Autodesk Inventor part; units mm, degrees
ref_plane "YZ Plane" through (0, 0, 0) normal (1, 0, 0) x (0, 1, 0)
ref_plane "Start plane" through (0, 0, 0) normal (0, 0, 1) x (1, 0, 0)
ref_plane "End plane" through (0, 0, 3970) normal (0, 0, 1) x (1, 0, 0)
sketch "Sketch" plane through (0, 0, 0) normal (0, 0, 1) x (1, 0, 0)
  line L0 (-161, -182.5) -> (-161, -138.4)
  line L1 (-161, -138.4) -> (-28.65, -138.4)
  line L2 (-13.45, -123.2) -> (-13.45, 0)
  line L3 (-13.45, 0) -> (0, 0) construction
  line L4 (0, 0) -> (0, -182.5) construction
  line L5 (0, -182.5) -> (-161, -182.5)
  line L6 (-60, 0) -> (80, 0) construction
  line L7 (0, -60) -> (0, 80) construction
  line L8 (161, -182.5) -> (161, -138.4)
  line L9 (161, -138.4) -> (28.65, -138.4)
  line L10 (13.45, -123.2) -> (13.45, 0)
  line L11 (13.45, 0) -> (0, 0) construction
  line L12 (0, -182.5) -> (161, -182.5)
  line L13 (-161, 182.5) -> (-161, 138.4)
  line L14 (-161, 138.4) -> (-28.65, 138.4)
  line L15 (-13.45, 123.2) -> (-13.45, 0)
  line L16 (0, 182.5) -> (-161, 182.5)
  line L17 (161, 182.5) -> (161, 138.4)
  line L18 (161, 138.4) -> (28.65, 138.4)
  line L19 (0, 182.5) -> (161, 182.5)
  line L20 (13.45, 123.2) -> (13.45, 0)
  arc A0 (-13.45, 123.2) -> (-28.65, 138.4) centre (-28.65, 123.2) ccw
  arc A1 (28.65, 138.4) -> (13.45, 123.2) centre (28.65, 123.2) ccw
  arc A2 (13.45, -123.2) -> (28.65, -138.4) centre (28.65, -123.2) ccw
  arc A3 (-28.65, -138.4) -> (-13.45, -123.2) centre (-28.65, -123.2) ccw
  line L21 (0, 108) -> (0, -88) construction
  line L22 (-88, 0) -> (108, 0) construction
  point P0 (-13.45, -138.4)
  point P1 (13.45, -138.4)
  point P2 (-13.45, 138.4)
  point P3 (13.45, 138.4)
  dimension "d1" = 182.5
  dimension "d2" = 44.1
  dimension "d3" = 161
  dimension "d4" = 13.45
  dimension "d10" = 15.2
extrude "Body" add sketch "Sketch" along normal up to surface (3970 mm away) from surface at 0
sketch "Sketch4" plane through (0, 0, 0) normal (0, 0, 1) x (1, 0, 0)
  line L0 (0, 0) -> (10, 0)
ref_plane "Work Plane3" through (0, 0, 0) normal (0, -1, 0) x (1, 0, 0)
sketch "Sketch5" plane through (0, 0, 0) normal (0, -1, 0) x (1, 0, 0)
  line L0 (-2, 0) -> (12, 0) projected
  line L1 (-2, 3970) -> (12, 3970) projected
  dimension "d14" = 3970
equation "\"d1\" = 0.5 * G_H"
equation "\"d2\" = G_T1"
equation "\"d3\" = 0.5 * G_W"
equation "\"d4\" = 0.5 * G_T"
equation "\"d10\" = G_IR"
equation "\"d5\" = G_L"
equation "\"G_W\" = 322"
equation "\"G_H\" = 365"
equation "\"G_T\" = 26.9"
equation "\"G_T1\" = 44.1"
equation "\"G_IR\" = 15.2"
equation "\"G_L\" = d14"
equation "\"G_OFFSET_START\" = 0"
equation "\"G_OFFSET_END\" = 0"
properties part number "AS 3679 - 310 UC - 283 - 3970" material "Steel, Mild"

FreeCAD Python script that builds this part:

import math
import FreeCAD as App
import Part
import Sketcher

V = App.Vector
Q = App.Units.Quantity

doc = App.newDocument("Part")
body = doc.addObject("PartDesign::Body", "Body")

sketch1 = body.newObject("Sketcher::SketchObject", "Sketch")
sketch1.AttachmentSupport = (doc.getObject("XY_Plane"), [""])
sketch1.MapMode = "FlatFace"
sketch1.addGeometry(Part.LineSegment(V(-161, -138, 0), V(-161, -182, 0)), False)
sketch1.addGeometry(Part.LineSegment(V(-161, -182, 0), V(161, -182, 0)), False)
sketch1.addGeometry(Part.LineSegment(V(161, -182, 0), V(161, -138, 0)), False)
sketch1.addGeometry(Part.LineSegment(V(161, -138, 0), V(29, -138, 0)), False)
sketch1.addGeometry(Part.ArcOfCircle(Part.Circle(V(29, -123, 0), V(0, 0, 1), 15), math.radians(180), math.radians(270)), False)
sketch1.addGeometry(Part.LineSegment(V(13, -123, 0), V(13, 123, 0)), False)
sketch1.addGeometry(Part.ArcOfCircle(Part.Circle(V(29, 123, 0), V(0, 0, 1), 15), math.radians(90), math.radians(180)), False)
sketch1.addGeometry(Part.LineSegment(V(29, 138, 0), V(161, 138, 0)), False)
sketch1.addGeometry(Part.LineSegment(V(161, 138, 0), V(161, 182, 0)), False)
sketch1.addGeometry(Part.LineSegment(V(161, 182, 0), V(-161, 182, 0)), False)
sketch1.addGeometry(Part.LineSegment(V(-161, 182, 0), V(-161, 138, 0)), False)
sketch1.addGeometry(Part.LineSegment(V(-161, 138, 0), V(-29, 138, 0)), False)
sketch1.addGeometry(Part.ArcOfCircle(Part.Circle(V(-29, 123, 0), V(0, 0, 1), 15), math.radians(0), math.radians(90)), False)
sketch1.addGeometry(Part.LineSegment(V(-13, 123, 0), V(-13, -123, 0)), False)
sketch1.addGeometry(Part.ArcOfCircle(Part.Circle(V(-29, -123, 0), V(0, 0, 1), 15), math.radians(-90), math.radians(0)), False)
sketch1.addGeometry(Part.LineSegment(V(-29, -138, 0), V(-161, -138, 0)), False)
sketch1.addConstraint(Sketcher.Constraint("Coincident", 0, 2, 1, 1))
sketch1.addConstraint(Sketcher.Constraint("Coincident", 1, 2, 2, 1))
sketch1.addConstraint(Sketcher.Constraint("Coincident", 2, 2, 3, 1))
sketch1.addConstraint(Sketcher.Constraint("Tangent", 3, 2, 4, 2))
sketch1.addConstraint(Sketcher.Constraint("Tangent", 4, 1, 5, 1))
sketch1.addConstraint(Sketcher.Constraint("Tangent", 5, 2, 6, 2))
sketch1.addConstraint(Sketcher.Constraint("Tangent", 6, 1, 7, 1))
sketch1.addConstraint(Sketcher.Constraint("Coincident", 7, 2, 8, 1))
sketch1.addConstraint(Sketcher.Constraint("Coincident", 8, 2, 9, 1))
sketch1.addConstraint(Sketcher.Constraint("Coincident", 9, 2, 10, 1))
sketch1.addConstraint(Sketcher.Constraint("Coincident", 10, 2, 11, 1))
sketch1.addConstraint(Sketcher.Constraint("Tangent", 11, 2, 12, 2))
sketch1.addConstraint(Sketcher.Constraint("Tangent", 12, 1, 13, 1))
sketch1.addConstraint(Sketcher.Constraint("Tangent", 13, 2, 14, 2))
sketch1.addConstraint(Sketcher.Constraint("Tangent", 14, 1, 15, 1))
sketch1.addConstraint(Sketcher.Constraint("Coincident", 15, 2, 0, 1))
sketch1.addConstraint(Sketcher.Constraint("Vertical", 0))
sketch1.addConstraint(Sketcher.Constraint("Horizontal", 1))
sketch1.addConstraint(Sketcher.Constraint("Vertical", 2))
sketch1.addConstraint(Sketcher.Constraint("Horizontal", 3))
sketch1.addConstraint(Sketcher.Constraint("Vertical", 5))
sketch1.addConstraint(Sketcher.Constraint("Horizontal", 7))
sketch1.addConstraint(Sketcher.Constraint("Vertical", 8))
sketch1.addConstraint(Sketcher.Constraint("Horizontal", 9))
sketch1.addConstraint(Sketcher.Constraint("Vertical", 10))
sketch1.addConstraint(Sketcher.Constraint("Horizontal", 11))
sketch1.addConstraint(Sketcher.Constraint("Vertical", 13))
sketch1.addConstraint(Sketcher.Constraint("Horizontal", 15))
sketch1.addConstraint(Sketcher.Constraint("Equal", 4, 6))
sketch1.addConstraint(Sketcher.Constraint("Equal", 6, 12))
sketch1.addConstraint(Sketcher.Constraint("Equal", 12, 14))
sketch1.addConstraint(Sketcher.Constraint("Symmetric", 4, 3, 12, 3, -1, 1))
sketch1.addConstraint(Sketcher.Constraint("Symmetric", 0, 2, 8, 2, -1, 1))
sketch1.addConstraint(Sketcher.Constraint("Symmetric", 7, 2, 10, 2, -2))
sketch1.addConstraint(Sketcher.Constraint("Symmetric", 2, 2, 15, 2, -2))
sketch1.addConstraint(Sketcher.Constraint("Radius", 4, Q("15.2 mm")))
sketch1.addConstraint(Sketcher.Constraint("DistanceY", 0, 2, 0, 1, Q("44.1 mm")))
sketch1.addConstraint(Sketcher.Constraint("DistanceX", 0, 2, -1, 1, Q("161 mm")))
sketch1.addConstraint(Sketcher.Constraint("DistanceY", 0, 2, -1, 1, Q("182.5 mm")))
sketch1.addConstraint(Sketcher.Constraint("DistanceX", -1, 1, 4, 1, Q("13.45 mm")))
pad1 = body.newObject("PartDesign::Pad", "Pad")
pad1.Profile = sketch1
pad1.Length = 3970

doc.recompute()
